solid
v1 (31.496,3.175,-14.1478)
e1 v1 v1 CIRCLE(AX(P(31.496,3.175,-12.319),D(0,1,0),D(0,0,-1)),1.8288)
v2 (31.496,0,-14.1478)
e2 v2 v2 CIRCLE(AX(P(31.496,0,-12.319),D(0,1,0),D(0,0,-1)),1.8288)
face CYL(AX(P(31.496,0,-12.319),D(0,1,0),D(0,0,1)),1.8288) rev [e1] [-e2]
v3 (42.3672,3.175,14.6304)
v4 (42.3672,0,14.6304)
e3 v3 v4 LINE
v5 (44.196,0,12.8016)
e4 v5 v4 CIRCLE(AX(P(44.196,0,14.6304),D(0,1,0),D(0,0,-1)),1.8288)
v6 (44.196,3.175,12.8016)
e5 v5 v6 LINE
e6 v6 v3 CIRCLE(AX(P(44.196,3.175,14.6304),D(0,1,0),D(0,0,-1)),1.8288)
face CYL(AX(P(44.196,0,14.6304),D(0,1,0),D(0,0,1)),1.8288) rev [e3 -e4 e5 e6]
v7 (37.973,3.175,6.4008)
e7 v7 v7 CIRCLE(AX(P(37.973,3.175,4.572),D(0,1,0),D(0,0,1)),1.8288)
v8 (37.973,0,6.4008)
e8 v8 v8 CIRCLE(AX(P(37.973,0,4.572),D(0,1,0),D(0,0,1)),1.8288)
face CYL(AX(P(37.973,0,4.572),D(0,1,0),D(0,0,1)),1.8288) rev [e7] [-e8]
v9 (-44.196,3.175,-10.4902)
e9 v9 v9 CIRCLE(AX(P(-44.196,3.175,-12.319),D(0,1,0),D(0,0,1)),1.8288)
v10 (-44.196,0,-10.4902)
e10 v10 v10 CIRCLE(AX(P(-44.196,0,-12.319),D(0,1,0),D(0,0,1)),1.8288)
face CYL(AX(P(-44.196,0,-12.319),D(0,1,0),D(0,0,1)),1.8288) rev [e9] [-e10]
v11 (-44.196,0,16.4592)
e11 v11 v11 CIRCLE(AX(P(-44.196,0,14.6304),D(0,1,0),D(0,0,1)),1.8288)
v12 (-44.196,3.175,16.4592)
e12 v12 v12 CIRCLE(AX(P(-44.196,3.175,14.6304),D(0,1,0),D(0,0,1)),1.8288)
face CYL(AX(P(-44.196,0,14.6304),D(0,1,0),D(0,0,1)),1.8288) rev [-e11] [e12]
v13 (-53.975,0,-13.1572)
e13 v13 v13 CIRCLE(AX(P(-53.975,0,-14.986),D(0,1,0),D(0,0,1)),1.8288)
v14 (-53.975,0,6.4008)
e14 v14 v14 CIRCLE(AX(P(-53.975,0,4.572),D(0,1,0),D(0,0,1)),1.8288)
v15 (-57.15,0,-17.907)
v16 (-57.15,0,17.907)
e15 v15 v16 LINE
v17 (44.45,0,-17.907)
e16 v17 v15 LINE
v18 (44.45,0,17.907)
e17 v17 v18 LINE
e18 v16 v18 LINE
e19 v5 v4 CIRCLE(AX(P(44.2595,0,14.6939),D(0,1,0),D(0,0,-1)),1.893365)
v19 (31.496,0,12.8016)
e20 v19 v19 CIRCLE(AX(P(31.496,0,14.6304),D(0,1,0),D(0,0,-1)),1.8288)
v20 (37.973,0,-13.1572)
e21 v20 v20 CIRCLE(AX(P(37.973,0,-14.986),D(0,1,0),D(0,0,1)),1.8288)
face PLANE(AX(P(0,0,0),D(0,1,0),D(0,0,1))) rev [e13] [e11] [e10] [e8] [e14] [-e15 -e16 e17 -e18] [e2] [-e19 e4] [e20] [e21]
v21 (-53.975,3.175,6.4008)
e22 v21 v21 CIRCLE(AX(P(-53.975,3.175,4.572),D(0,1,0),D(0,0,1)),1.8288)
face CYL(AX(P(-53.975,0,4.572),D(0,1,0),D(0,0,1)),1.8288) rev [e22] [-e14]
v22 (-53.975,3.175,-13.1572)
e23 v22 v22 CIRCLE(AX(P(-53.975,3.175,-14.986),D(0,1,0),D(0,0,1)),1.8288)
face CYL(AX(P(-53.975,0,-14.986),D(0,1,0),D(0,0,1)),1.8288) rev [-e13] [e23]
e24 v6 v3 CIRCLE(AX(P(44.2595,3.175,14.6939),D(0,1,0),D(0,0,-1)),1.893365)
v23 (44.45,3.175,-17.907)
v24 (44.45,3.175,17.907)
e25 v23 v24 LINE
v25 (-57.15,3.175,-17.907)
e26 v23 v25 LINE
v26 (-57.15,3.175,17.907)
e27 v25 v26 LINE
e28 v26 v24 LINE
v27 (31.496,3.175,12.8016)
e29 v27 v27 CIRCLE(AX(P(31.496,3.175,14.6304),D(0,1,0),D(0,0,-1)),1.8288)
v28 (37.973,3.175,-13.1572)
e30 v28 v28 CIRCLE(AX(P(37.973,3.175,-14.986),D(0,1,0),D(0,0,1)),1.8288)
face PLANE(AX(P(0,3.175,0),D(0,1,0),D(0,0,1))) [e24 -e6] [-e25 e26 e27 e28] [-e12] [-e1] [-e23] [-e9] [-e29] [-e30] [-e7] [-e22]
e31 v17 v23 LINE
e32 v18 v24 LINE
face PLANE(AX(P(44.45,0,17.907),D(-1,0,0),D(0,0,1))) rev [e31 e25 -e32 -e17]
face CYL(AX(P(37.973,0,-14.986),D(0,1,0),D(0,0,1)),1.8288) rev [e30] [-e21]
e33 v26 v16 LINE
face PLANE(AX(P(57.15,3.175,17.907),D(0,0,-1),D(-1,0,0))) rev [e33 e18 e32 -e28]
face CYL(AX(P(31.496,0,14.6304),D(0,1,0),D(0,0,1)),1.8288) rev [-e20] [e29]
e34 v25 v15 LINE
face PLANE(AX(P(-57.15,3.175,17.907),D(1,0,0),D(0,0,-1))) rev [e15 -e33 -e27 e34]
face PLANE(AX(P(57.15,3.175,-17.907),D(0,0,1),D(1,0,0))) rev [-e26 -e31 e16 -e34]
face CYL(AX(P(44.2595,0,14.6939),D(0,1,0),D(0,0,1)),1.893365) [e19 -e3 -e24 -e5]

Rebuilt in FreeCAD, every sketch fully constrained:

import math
import FreeCAD as App
import Part
import Sketcher
Q = App.Units.Quantity

doc = App.newDocument("Part")
body = doc.addObject("PartDesign::Body", "Body")

sketch1 = body.newObject("Sketcher::SketchObject", "Sketch")
sketch1.AttachmentSupport = (doc.getObject("XZ_Plane"), [""])
sketch1.MapMode = "FlatFace"
sketch1.addGeometry([
    Part.LineSegment(App.Vector(-57, -18, 0), App.Vector(-57, 18, 0)),
    Part.LineSegment(App.Vector(-57, 18, 0), App.Vector(57, 18, 0)),
    Part.LineSegment(App.Vector(57, 18, 0), App.Vector(57, -18, 0)),
    Part.LineSegment(App.Vector(57, -18, 0), App.Vector(-57, -18, 0)),
], False)
sketch1.addConstraint([
    Sketcher.Constraint("Coincident", 0, 2, 1, 1),
    Sketcher.Constraint("Coincident", 1, 2, 2, 1),
    Sketcher.Constraint("Coincident", 2, 2, 3, 1),
    Sketcher.Constraint("Coincident", 3, 2, 0, 1),
    Sketcher.Constraint("Vertical", 0),
    Sketcher.Constraint("Horizontal", 1),
    Sketcher.Constraint("Vertical", 2),
    Sketcher.Constraint("Horizontal", 3),
    Sketcher.Constraint("Symmetric", 0, 2, 2, 2, -1, 1),
    Sketcher.Constraint("DistanceX", 1, 1, 1, 2, Q("4.5 in")),
    Sketcher.Constraint("DistanceY", 0, 1, 0, 2, Q("1.41 in")),
])
pad1 = body.newObject("PartDesign::Pad", "Pad")
pad1.Profile = sketch1
pad1.Length = Q("0.125 in")
pad1.Reversed = True

sketch2 = body.newObject("Sketcher::SketchObject", "Sketch001")
sketch2.AttachmentSupport = (doc.getObject("XZ_Plane"), [""])
sketch2.MapMode = "FlatFace"
sketch2.AttachmentOffset = App.Placement(App.Vector(0, 0, -0.125 * 25.4), App.Rotation())
sketch2.addGeometry([
    Part.Circle(App.Vector(-54, -15, 0), App.Vector(0, 0, 1), 1.8),
    Part.Circle(App.Vector(-54, 4.6, 0), App.Vector(0, 0, 1), 1.8),
    Part.Circle(App.Vector(-44.2, -12.3, 0), App.Vector(0, 0, 1), 1.8),
    Part.Circle(App.Vector(-44.2, 14.6, 0), App.Vector(0, 0, 1), 1.8),
    Part.Circle(App.Vector(44.2, 14.6, 0), App.Vector(0, 0, 1), 1.8),
    Part.Circle(App.Vector(54, 4.6, 0), App.Vector(0, 0, 1), 1.8),
    Part.Circle(App.Vector(44.2, -12.3, 0), App.Vector(0, 0, 1), 1.8),
    Part.Circle(App.Vector(54, -15, 0), App.Vector(0, 0, 1), 1.8),
], False)
sketch2.addConstraint([
    Sketcher.Constraint("Equal", 0, 1),
    Sketcher.Constraint("Equal", 1, 2),
    Sketcher.Constraint("Equal", 2, 3),
    Sketcher.Constraint("Equal", 3, 4),
    Sketcher.Constraint("Equal", 4, 5),
    Sketcher.Constraint("Equal", 5, 6),
    Sketcher.Constraint("Equal", 6, 7),
    Sketcher.Constraint("Symmetric", 3, 3, 4, 3, -2),
    Sketcher.Constraint("Symmetric", 1, 3, 5, 3, -2),
    Sketcher.Constraint("Symmetric", 2, 3, 6, 3, -2),
    Sketcher.Constraint("Symmetric", 0, 3, 7, 3, -2),
    Sketcher.Constraint("Vertical", 0, 3, 1, 3),
    Sketcher.Constraint("Vertical", 2, 3, 3, 3),
    Sketcher.Constraint("Diameter", 0, Q("0.144 in")),
    Sketcher.Constraint("DistanceY", 0, 3, -1, 1, Q("0.59 in")),
    Sketcher.Constraint("DistanceY", -1, 1, 1, 3, Q("0.18 in")),
    Sketcher.Constraint("DistanceX", 2, 3, -1, 1, Q("1.74 in")),
    Sketcher.Constraint("DistanceX", 1, 3, 5, 3, Q("4.25 in")),
    Sketcher.Constraint("DistanceY", 2, 3, -1, 1, Q("0.485 in")),
    Sketcher.Constraint("DistanceY", -1, 1, 3, 3, Q("0.576 in")),
])
pocket1 = body.newObject("PartDesign::Pocket", "Pocket")
pocket1.Profile = sketch2
pocket1.Type = "ThroughAll"
pocket1.Reversed = True

sketch3 = body.newObject("Sketcher::SketchObject", "Sketch002")
sketch3.AttachmentSupport = (doc.getObject("XZ_Plane"), [""])
sketch3.MapMode = "FlatFace"
sketch3.AttachmentOffset = App.Placement(App.Vector(0, 0, -0.125 * 25.4), App.Rotation())
sketch3.addGeometry([
    Part.LineSegment(App.Vector(44, -18, 0), App.Vector(44, 18, 0)),
    Part.LineSegment(App.Vector(44, 18, 0), App.Vector(57, 18, 0)),
    Part.LineSegment(App.Vector(57, 18, 0), App.Vector(57, -18, 0)),
    Part.LineSegment(App.Vector(57, -18, 0), App.Vector(44, -18, 0)),
], False)
sketch3.addConstraint([
    Sketcher.Constraint("Coincident", 0, 2, 1, 1),
    Sketcher.Constraint("Coincident", 1, 2, 2, 1),
    Sketcher.Constraint("Coincident", 2, 2, 3, 1),
    Sketcher.Constraint("Coincident", 3, 2, 0, 1),
    Sketcher.Constraint("Vertical", 0),
    Sketcher.Constraint("Horizontal", 1),
    Sketcher.Constraint("Vertical", 2),
    Sketcher.Constraint("Horizontal", 3),
    Sketcher.Constraint("DistanceX", 1, 1, 1, 2, Q("0.5 in")),
    Sketcher.Constraint("DistanceY", 0, 1, 0, 2, Q("1.41 in")),
    Sketcher.Constraint("DistanceX", -1, 1, 0, 2, Q("1.75 in")),
    Sketcher.Constraint("DistanceY", -1, 1, 0, 2, Q("0.705 in")),
])
pocket2 = body.newObject("PartDesign::Pocket", "Pocket001")
pocket2.Profile = sketch3
pocket2.Type = "ThroughAll"
pocket2.Reversed = True

sketch4 = body.newObject("Sketcher::SketchObject", "Sketch003")
sketch4.AttachmentSupport = (doc.getObject("XZ_Plane"), [""])
sketch4.MapMode = "FlatFace"
sketch4.AttachmentOffset = App.Placement(App.Vector(0, 0, -0.125 * 25.4), App.Rotation())
sketch4.addGeometry([
    Part.Circle(App.Vector(-44.2, -12.3, 0), App.Vector(0, 0, 1), 1.8),
    Part.Circle(App.Vector(-54, -15, 0), App.Vector(0, 0, 1), 1.8),
    Part.Circle(App.Vector(-54, 4.6, 0), App.Vector(0, 0, 1), 1.8),
    Part.Circle(App.Vector(-44.2, 14.6, 0), App.Vector(0, 0, 1), 1.8),
    Part.Circle(App.Vector(31.5, 14.6, 0), App.Vector(0, 0, 1), 1.8),
    Part.Circle(App.Vector(41.3, 4.6, 0), App.Vector(0, 0, 1), 1.8),
    Part.Circle(App.Vector(31.5, -12.3, 0), App.Vector(0, 0, 1), 1.8),
    Part.Circle(App.Vector(41.3, -15, 0), App.Vector(0, 0, 1), 1.8),
], False)
sketch4.addConstraint([
    Sketcher.Constraint("Equal", 0, 1),
    Sketcher.Constraint("Equal", 1, 2),
    Sketcher.Constraint("Equal", 2, 3),
    Sketcher.Constraint("Equal", 3, 4),
    Sketcher.Constraint("Equal", 4, 5),
    Sketcher.Constraint("Equal", 5, 6),
    Sketcher.Constraint("Equal", 6, 7),
    Sketcher.Constraint("Horizontal", 3, 3, 4, 3),
    Sketcher.Constraint("Horizontal", 2, 3, 5, 3),
    Sketcher.Constraint("Horizontal", 0, 3, 6, 3),
    Sketcher.Constraint("Horizontal", 1, 3, 7, 3),
    Sketcher.Constraint("Vertical", 1, 3, 2, 3),
    Sketcher.Constraint("Vertical", 0, 3, 3, 3),
    Sketcher.Constraint("Vertical", 4, 3, 6, 3),
    Sketcher.Constraint("Vertical", 5, 3, 7, 3),
    Sketcher.Constraint("Diameter", 0, Q("0.144 in")),
    Sketcher.Constraint("DistanceX", 0, 3, -1, 1, Q("1.74 in")),
    Sketcher.Constraint("DistanceY", 1, 3, -1, 1, Q("0.59 in")),
    Sketcher.Constraint("DistanceY", -1, 1, 2, 3, Q("0.18 in")),
    Sketcher.Constraint("DistanceX", -1, 1, 4, 3, Q("1.24 in")),
    Sketcher.Constraint("DistanceX", 2, 3, 5, 3, Q("3.75 in")),
    Sketcher.Constraint("DistanceY", 0, 3, -1, 1, Q("0.485 in")),
    Sketcher.Constraint("DistanceX", 1, 3, -1, 1, Q("2.125 in")),
    Sketcher.Constraint("DistanceY", -1, 1, 3, 3, Q("0.576 in")),
])
pocket3 = body.newObject("PartDesign::Pocket", "Pocket002")
pocket3.Profile = sketch4
pocket3.Type = "ThroughAll"
pocket3.Reversed = True

sketch5 = body.newObject("Sketcher::SketchObject", "Sketch004")
sketch5.AttachmentSupport = (doc.getObject("XZ_Plane"), [""])
sketch5.MapMode = "FlatFace"
sketch5.AttachmentOffset = App.Placement(App.Vector(0, 0, -0.125 * 25.4), App.Rotation())
sketch5.addGeometry([
    Part.LineSegment(App.Vector(44.45, -14.54, 0), App.Vector(44.2, -14.15, 0)),
    Part.ArcOfCircle(Part.Circle(App.Vector(44.2, -12.32, 0), App.Vector(0, 0, 1), 1.83), math.radians(82), math.radians(270)),
    Part.LineSegment(App.Vector(44.45, -10.51, 0), App.Vector(44.45, -14.54, 0)),
    Part.LineSegment(App.Vector(44.45, 12.55, 0), App.Vector(44.2, 12.8, 0)),
    Part.ArcOfCircle(Part.Circle(App.Vector(44.26, 14.69, 0), App.Vector(0, 0, 1), 1.89), math.radians(88), math.radians(268)),
    Part.LineSegment(App.Vector(44.32, 16.59, 0), App.Vector(44.45, 16.71, 0)),
    Part.LineSegment(App.Vector(44.45, 16.71, 0), App.Vector(44.45, 12.55, 0)),
], False)
sketch5.addConstraint([
    Sketcher.Constraint("Coincident", 0, 2, 1, 2),
    Sketcher.Constraint("Coincident", 1, 1, 2, 1),
    Sketcher.Constraint("Coincident", 2, 2, 0, 1),
    Sketcher.Constraint("Coincident", 3, 2, 4, 2),
    Sketcher.Constraint("Coincident", 4, 1, 5, 1),
    Sketcher.Constraint("Coincident", 5, 2, 6, 1),
    Sketcher.Constraint("Coincident", 6, 2, 3, 1),
    Sketcher.Constraint("Vertical", 2),
    Sketcher.Constraint("Vertical", 6),
    Sketcher.Constraint("Vertical", 1, 3, 0, 2),
    Sketcher.Constraint("Vertical", 0, 2, 3, 2),
    Sketcher.Constraint("Vertical", 2, 2, 5, 2),
    Sketcher.Constraint("Angle", 5, Q("45 deg")),
    Sketcher.Constraint("Radius", 1, Q("0.072 in")),
    Sketcher.Constraint("DistanceX", -1, 1, 1, 3, Q("1.74 in")),
    Sketcher.Constraint("DistanceX", -1, 1, 1, 1, Q("1.75 in")),
    Sketcher.Constraint("DistanceY", 0, 2, 4, 1, Q("1.21 in")),
    Sketcher.Constraint("DistanceY", 1, 3, -1, 1, Q("0.485 in")),
    Sketcher.Constraint("DistanceY", -1, 1, 3, 2, Q("0.504 in")),
    Sketcher.Constraint("DistanceX", -1, 1, 4, 1, Q("1.745 in")),
    Sketcher.Constraint("DistanceX", -1, 1, 4, 3, Q("1.7425 in")),
    Sketcher.Constraint("Distance", 3, Q("0.356699 mm")),
    Sketcher.Constraint("DistanceY", 2, 2, 2, 1, Q("4.034536 mm")),
])
pad2 = body.newObject("PartDesign::Pad", "Pad001")
pad2.Profile = sketch5
pad2.Length = Q("0.125 in")

sketch6 = body.newObject("Sketcher::SketchObject", "Sketch005")
sketch6.AttachmentSupport = (doc.getObject("XZ_Plane"), [""])
sketch6.MapMode = "FlatFace"
sketch6.AttachmentOffset = App.Placement(App.Vector(0, 0, -0.125 * 25.4), App.Rotation())
sketch6.addGeometry([
    Part.Circle(App.Vector(38, 4.6, 0), App.Vector(0, 0, 1), 1.8),
    Part.Circle(App.Vector(38, -15, 0), App.Vector(0, 0, 1), 1.8),
], False)
sketch6.addConstraint([
    Sketcher.Constraint("Equal", 0, 1),
    Sketcher.Constraint("Vertical", 0, 3, 1, 3),
    Sketcher.Constraint("Diameter", 0, Q("0.144 in")),
    Sketcher.Constraint("DistanceY", -1, 1, 0, 3, Q("0.18 in")),
    Sketcher.Constraint("DistanceY", 1, 3, -1, 1, Q("0.59 in")),
    Sketcher.Constraint("DistanceX", -1, 1, 0, 3, Q("1.495 in")),
])
pocket4 = body.newObject("PartDesign::Pocket", "Pocket003")
pocket4.Profile = sketch6
pocket4.Type = "ThroughAll"
pocket4.Reversed = True

sketch7 = body.newObject("Sketcher::SketchObject", "Sketch006")
sketch7.AttachmentSupport = (doc.getObject("XZ_Plane"), [""])
sketch7.MapMode = "FlatFace"
sketch7.AttachmentOffset = App.Placement(App.Vector(0, 0, -0.125 * 25.4), App.Rotation())
sketch7.addGeometry([
    Part.ArcOfCircle(Part.Circle(App.Vector(38, -15, 0), App.Vector(0, 0, 1), 1.8), math.radians(-25), math.radians(25)),
    Part.ArcOfCircle(Part.Circle(App.Vector(41.3, -15, 0), App.Vector(0, 0, 1), 1.8), math.radians(-155), math.radians(155)),
    Part.ArcOfCircle(Part.Circle(App.Vector(38, 4.6, 0), App.Vector(0, 0, 1), 1.8), math.radians(-25), math.radians(25)),
    Part.ArcOfCircle(Part.Circle(App.Vector(41.3, 4.6, 0), App.Vector(0, 0, 1), 1.8), math.radians(-155), math.radians(155)),
], False)
sketch7.addConstraint([
    Sketcher.Constraint("Coincident", 0, 1, 1, 1),
    Sketcher.Constraint("Coincident", 1, 2, 0, 2),
    Sketcher.Constraint("Coincident", 2, 1, 3, 1),
    Sketcher.Constraint("Coincident", 3, 2, 2, 2),
    Sketcher.Constraint("Equal", 0, 1),
    Sketcher.Constraint("Equal", 1, 2),
    Sketcher.Constraint("Equal", 2, 3),
    Sketcher.Constraint("Horizontal", 0, 3, 1, 3),
    Sketcher.Constraint("Horizontal", 2, 3, 3, 3),
    Sketcher.Constraint("Vertical", 0, 3, 2, 3),
    Sketcher.Constraint("Vertical", 1, 3, 3, 3),
    Sketcher.Constraint("Radius", 0, Q("0.072 in")),
    Sketcher.Constraint("DistanceY", 0, 3, -1, 1, Q("0.59 in")),
    Sketcher.Constraint("DistanceY", -1, 1, 2, 3, Q("0.18 in")),
    Sketcher.Constraint("DistanceX", -1, 1, 0, 1, Q("1.56 in")),
    Sketcher.Constraint("DistanceX", 0, 3, 1, 3, Q("0.13 in")),
])
pad3 = body.newObject("PartDesign::Pad", "Pad002")
pad3.Profile = sketch7
pad3.Length = Q("0.125 in")

doc.recompute()
